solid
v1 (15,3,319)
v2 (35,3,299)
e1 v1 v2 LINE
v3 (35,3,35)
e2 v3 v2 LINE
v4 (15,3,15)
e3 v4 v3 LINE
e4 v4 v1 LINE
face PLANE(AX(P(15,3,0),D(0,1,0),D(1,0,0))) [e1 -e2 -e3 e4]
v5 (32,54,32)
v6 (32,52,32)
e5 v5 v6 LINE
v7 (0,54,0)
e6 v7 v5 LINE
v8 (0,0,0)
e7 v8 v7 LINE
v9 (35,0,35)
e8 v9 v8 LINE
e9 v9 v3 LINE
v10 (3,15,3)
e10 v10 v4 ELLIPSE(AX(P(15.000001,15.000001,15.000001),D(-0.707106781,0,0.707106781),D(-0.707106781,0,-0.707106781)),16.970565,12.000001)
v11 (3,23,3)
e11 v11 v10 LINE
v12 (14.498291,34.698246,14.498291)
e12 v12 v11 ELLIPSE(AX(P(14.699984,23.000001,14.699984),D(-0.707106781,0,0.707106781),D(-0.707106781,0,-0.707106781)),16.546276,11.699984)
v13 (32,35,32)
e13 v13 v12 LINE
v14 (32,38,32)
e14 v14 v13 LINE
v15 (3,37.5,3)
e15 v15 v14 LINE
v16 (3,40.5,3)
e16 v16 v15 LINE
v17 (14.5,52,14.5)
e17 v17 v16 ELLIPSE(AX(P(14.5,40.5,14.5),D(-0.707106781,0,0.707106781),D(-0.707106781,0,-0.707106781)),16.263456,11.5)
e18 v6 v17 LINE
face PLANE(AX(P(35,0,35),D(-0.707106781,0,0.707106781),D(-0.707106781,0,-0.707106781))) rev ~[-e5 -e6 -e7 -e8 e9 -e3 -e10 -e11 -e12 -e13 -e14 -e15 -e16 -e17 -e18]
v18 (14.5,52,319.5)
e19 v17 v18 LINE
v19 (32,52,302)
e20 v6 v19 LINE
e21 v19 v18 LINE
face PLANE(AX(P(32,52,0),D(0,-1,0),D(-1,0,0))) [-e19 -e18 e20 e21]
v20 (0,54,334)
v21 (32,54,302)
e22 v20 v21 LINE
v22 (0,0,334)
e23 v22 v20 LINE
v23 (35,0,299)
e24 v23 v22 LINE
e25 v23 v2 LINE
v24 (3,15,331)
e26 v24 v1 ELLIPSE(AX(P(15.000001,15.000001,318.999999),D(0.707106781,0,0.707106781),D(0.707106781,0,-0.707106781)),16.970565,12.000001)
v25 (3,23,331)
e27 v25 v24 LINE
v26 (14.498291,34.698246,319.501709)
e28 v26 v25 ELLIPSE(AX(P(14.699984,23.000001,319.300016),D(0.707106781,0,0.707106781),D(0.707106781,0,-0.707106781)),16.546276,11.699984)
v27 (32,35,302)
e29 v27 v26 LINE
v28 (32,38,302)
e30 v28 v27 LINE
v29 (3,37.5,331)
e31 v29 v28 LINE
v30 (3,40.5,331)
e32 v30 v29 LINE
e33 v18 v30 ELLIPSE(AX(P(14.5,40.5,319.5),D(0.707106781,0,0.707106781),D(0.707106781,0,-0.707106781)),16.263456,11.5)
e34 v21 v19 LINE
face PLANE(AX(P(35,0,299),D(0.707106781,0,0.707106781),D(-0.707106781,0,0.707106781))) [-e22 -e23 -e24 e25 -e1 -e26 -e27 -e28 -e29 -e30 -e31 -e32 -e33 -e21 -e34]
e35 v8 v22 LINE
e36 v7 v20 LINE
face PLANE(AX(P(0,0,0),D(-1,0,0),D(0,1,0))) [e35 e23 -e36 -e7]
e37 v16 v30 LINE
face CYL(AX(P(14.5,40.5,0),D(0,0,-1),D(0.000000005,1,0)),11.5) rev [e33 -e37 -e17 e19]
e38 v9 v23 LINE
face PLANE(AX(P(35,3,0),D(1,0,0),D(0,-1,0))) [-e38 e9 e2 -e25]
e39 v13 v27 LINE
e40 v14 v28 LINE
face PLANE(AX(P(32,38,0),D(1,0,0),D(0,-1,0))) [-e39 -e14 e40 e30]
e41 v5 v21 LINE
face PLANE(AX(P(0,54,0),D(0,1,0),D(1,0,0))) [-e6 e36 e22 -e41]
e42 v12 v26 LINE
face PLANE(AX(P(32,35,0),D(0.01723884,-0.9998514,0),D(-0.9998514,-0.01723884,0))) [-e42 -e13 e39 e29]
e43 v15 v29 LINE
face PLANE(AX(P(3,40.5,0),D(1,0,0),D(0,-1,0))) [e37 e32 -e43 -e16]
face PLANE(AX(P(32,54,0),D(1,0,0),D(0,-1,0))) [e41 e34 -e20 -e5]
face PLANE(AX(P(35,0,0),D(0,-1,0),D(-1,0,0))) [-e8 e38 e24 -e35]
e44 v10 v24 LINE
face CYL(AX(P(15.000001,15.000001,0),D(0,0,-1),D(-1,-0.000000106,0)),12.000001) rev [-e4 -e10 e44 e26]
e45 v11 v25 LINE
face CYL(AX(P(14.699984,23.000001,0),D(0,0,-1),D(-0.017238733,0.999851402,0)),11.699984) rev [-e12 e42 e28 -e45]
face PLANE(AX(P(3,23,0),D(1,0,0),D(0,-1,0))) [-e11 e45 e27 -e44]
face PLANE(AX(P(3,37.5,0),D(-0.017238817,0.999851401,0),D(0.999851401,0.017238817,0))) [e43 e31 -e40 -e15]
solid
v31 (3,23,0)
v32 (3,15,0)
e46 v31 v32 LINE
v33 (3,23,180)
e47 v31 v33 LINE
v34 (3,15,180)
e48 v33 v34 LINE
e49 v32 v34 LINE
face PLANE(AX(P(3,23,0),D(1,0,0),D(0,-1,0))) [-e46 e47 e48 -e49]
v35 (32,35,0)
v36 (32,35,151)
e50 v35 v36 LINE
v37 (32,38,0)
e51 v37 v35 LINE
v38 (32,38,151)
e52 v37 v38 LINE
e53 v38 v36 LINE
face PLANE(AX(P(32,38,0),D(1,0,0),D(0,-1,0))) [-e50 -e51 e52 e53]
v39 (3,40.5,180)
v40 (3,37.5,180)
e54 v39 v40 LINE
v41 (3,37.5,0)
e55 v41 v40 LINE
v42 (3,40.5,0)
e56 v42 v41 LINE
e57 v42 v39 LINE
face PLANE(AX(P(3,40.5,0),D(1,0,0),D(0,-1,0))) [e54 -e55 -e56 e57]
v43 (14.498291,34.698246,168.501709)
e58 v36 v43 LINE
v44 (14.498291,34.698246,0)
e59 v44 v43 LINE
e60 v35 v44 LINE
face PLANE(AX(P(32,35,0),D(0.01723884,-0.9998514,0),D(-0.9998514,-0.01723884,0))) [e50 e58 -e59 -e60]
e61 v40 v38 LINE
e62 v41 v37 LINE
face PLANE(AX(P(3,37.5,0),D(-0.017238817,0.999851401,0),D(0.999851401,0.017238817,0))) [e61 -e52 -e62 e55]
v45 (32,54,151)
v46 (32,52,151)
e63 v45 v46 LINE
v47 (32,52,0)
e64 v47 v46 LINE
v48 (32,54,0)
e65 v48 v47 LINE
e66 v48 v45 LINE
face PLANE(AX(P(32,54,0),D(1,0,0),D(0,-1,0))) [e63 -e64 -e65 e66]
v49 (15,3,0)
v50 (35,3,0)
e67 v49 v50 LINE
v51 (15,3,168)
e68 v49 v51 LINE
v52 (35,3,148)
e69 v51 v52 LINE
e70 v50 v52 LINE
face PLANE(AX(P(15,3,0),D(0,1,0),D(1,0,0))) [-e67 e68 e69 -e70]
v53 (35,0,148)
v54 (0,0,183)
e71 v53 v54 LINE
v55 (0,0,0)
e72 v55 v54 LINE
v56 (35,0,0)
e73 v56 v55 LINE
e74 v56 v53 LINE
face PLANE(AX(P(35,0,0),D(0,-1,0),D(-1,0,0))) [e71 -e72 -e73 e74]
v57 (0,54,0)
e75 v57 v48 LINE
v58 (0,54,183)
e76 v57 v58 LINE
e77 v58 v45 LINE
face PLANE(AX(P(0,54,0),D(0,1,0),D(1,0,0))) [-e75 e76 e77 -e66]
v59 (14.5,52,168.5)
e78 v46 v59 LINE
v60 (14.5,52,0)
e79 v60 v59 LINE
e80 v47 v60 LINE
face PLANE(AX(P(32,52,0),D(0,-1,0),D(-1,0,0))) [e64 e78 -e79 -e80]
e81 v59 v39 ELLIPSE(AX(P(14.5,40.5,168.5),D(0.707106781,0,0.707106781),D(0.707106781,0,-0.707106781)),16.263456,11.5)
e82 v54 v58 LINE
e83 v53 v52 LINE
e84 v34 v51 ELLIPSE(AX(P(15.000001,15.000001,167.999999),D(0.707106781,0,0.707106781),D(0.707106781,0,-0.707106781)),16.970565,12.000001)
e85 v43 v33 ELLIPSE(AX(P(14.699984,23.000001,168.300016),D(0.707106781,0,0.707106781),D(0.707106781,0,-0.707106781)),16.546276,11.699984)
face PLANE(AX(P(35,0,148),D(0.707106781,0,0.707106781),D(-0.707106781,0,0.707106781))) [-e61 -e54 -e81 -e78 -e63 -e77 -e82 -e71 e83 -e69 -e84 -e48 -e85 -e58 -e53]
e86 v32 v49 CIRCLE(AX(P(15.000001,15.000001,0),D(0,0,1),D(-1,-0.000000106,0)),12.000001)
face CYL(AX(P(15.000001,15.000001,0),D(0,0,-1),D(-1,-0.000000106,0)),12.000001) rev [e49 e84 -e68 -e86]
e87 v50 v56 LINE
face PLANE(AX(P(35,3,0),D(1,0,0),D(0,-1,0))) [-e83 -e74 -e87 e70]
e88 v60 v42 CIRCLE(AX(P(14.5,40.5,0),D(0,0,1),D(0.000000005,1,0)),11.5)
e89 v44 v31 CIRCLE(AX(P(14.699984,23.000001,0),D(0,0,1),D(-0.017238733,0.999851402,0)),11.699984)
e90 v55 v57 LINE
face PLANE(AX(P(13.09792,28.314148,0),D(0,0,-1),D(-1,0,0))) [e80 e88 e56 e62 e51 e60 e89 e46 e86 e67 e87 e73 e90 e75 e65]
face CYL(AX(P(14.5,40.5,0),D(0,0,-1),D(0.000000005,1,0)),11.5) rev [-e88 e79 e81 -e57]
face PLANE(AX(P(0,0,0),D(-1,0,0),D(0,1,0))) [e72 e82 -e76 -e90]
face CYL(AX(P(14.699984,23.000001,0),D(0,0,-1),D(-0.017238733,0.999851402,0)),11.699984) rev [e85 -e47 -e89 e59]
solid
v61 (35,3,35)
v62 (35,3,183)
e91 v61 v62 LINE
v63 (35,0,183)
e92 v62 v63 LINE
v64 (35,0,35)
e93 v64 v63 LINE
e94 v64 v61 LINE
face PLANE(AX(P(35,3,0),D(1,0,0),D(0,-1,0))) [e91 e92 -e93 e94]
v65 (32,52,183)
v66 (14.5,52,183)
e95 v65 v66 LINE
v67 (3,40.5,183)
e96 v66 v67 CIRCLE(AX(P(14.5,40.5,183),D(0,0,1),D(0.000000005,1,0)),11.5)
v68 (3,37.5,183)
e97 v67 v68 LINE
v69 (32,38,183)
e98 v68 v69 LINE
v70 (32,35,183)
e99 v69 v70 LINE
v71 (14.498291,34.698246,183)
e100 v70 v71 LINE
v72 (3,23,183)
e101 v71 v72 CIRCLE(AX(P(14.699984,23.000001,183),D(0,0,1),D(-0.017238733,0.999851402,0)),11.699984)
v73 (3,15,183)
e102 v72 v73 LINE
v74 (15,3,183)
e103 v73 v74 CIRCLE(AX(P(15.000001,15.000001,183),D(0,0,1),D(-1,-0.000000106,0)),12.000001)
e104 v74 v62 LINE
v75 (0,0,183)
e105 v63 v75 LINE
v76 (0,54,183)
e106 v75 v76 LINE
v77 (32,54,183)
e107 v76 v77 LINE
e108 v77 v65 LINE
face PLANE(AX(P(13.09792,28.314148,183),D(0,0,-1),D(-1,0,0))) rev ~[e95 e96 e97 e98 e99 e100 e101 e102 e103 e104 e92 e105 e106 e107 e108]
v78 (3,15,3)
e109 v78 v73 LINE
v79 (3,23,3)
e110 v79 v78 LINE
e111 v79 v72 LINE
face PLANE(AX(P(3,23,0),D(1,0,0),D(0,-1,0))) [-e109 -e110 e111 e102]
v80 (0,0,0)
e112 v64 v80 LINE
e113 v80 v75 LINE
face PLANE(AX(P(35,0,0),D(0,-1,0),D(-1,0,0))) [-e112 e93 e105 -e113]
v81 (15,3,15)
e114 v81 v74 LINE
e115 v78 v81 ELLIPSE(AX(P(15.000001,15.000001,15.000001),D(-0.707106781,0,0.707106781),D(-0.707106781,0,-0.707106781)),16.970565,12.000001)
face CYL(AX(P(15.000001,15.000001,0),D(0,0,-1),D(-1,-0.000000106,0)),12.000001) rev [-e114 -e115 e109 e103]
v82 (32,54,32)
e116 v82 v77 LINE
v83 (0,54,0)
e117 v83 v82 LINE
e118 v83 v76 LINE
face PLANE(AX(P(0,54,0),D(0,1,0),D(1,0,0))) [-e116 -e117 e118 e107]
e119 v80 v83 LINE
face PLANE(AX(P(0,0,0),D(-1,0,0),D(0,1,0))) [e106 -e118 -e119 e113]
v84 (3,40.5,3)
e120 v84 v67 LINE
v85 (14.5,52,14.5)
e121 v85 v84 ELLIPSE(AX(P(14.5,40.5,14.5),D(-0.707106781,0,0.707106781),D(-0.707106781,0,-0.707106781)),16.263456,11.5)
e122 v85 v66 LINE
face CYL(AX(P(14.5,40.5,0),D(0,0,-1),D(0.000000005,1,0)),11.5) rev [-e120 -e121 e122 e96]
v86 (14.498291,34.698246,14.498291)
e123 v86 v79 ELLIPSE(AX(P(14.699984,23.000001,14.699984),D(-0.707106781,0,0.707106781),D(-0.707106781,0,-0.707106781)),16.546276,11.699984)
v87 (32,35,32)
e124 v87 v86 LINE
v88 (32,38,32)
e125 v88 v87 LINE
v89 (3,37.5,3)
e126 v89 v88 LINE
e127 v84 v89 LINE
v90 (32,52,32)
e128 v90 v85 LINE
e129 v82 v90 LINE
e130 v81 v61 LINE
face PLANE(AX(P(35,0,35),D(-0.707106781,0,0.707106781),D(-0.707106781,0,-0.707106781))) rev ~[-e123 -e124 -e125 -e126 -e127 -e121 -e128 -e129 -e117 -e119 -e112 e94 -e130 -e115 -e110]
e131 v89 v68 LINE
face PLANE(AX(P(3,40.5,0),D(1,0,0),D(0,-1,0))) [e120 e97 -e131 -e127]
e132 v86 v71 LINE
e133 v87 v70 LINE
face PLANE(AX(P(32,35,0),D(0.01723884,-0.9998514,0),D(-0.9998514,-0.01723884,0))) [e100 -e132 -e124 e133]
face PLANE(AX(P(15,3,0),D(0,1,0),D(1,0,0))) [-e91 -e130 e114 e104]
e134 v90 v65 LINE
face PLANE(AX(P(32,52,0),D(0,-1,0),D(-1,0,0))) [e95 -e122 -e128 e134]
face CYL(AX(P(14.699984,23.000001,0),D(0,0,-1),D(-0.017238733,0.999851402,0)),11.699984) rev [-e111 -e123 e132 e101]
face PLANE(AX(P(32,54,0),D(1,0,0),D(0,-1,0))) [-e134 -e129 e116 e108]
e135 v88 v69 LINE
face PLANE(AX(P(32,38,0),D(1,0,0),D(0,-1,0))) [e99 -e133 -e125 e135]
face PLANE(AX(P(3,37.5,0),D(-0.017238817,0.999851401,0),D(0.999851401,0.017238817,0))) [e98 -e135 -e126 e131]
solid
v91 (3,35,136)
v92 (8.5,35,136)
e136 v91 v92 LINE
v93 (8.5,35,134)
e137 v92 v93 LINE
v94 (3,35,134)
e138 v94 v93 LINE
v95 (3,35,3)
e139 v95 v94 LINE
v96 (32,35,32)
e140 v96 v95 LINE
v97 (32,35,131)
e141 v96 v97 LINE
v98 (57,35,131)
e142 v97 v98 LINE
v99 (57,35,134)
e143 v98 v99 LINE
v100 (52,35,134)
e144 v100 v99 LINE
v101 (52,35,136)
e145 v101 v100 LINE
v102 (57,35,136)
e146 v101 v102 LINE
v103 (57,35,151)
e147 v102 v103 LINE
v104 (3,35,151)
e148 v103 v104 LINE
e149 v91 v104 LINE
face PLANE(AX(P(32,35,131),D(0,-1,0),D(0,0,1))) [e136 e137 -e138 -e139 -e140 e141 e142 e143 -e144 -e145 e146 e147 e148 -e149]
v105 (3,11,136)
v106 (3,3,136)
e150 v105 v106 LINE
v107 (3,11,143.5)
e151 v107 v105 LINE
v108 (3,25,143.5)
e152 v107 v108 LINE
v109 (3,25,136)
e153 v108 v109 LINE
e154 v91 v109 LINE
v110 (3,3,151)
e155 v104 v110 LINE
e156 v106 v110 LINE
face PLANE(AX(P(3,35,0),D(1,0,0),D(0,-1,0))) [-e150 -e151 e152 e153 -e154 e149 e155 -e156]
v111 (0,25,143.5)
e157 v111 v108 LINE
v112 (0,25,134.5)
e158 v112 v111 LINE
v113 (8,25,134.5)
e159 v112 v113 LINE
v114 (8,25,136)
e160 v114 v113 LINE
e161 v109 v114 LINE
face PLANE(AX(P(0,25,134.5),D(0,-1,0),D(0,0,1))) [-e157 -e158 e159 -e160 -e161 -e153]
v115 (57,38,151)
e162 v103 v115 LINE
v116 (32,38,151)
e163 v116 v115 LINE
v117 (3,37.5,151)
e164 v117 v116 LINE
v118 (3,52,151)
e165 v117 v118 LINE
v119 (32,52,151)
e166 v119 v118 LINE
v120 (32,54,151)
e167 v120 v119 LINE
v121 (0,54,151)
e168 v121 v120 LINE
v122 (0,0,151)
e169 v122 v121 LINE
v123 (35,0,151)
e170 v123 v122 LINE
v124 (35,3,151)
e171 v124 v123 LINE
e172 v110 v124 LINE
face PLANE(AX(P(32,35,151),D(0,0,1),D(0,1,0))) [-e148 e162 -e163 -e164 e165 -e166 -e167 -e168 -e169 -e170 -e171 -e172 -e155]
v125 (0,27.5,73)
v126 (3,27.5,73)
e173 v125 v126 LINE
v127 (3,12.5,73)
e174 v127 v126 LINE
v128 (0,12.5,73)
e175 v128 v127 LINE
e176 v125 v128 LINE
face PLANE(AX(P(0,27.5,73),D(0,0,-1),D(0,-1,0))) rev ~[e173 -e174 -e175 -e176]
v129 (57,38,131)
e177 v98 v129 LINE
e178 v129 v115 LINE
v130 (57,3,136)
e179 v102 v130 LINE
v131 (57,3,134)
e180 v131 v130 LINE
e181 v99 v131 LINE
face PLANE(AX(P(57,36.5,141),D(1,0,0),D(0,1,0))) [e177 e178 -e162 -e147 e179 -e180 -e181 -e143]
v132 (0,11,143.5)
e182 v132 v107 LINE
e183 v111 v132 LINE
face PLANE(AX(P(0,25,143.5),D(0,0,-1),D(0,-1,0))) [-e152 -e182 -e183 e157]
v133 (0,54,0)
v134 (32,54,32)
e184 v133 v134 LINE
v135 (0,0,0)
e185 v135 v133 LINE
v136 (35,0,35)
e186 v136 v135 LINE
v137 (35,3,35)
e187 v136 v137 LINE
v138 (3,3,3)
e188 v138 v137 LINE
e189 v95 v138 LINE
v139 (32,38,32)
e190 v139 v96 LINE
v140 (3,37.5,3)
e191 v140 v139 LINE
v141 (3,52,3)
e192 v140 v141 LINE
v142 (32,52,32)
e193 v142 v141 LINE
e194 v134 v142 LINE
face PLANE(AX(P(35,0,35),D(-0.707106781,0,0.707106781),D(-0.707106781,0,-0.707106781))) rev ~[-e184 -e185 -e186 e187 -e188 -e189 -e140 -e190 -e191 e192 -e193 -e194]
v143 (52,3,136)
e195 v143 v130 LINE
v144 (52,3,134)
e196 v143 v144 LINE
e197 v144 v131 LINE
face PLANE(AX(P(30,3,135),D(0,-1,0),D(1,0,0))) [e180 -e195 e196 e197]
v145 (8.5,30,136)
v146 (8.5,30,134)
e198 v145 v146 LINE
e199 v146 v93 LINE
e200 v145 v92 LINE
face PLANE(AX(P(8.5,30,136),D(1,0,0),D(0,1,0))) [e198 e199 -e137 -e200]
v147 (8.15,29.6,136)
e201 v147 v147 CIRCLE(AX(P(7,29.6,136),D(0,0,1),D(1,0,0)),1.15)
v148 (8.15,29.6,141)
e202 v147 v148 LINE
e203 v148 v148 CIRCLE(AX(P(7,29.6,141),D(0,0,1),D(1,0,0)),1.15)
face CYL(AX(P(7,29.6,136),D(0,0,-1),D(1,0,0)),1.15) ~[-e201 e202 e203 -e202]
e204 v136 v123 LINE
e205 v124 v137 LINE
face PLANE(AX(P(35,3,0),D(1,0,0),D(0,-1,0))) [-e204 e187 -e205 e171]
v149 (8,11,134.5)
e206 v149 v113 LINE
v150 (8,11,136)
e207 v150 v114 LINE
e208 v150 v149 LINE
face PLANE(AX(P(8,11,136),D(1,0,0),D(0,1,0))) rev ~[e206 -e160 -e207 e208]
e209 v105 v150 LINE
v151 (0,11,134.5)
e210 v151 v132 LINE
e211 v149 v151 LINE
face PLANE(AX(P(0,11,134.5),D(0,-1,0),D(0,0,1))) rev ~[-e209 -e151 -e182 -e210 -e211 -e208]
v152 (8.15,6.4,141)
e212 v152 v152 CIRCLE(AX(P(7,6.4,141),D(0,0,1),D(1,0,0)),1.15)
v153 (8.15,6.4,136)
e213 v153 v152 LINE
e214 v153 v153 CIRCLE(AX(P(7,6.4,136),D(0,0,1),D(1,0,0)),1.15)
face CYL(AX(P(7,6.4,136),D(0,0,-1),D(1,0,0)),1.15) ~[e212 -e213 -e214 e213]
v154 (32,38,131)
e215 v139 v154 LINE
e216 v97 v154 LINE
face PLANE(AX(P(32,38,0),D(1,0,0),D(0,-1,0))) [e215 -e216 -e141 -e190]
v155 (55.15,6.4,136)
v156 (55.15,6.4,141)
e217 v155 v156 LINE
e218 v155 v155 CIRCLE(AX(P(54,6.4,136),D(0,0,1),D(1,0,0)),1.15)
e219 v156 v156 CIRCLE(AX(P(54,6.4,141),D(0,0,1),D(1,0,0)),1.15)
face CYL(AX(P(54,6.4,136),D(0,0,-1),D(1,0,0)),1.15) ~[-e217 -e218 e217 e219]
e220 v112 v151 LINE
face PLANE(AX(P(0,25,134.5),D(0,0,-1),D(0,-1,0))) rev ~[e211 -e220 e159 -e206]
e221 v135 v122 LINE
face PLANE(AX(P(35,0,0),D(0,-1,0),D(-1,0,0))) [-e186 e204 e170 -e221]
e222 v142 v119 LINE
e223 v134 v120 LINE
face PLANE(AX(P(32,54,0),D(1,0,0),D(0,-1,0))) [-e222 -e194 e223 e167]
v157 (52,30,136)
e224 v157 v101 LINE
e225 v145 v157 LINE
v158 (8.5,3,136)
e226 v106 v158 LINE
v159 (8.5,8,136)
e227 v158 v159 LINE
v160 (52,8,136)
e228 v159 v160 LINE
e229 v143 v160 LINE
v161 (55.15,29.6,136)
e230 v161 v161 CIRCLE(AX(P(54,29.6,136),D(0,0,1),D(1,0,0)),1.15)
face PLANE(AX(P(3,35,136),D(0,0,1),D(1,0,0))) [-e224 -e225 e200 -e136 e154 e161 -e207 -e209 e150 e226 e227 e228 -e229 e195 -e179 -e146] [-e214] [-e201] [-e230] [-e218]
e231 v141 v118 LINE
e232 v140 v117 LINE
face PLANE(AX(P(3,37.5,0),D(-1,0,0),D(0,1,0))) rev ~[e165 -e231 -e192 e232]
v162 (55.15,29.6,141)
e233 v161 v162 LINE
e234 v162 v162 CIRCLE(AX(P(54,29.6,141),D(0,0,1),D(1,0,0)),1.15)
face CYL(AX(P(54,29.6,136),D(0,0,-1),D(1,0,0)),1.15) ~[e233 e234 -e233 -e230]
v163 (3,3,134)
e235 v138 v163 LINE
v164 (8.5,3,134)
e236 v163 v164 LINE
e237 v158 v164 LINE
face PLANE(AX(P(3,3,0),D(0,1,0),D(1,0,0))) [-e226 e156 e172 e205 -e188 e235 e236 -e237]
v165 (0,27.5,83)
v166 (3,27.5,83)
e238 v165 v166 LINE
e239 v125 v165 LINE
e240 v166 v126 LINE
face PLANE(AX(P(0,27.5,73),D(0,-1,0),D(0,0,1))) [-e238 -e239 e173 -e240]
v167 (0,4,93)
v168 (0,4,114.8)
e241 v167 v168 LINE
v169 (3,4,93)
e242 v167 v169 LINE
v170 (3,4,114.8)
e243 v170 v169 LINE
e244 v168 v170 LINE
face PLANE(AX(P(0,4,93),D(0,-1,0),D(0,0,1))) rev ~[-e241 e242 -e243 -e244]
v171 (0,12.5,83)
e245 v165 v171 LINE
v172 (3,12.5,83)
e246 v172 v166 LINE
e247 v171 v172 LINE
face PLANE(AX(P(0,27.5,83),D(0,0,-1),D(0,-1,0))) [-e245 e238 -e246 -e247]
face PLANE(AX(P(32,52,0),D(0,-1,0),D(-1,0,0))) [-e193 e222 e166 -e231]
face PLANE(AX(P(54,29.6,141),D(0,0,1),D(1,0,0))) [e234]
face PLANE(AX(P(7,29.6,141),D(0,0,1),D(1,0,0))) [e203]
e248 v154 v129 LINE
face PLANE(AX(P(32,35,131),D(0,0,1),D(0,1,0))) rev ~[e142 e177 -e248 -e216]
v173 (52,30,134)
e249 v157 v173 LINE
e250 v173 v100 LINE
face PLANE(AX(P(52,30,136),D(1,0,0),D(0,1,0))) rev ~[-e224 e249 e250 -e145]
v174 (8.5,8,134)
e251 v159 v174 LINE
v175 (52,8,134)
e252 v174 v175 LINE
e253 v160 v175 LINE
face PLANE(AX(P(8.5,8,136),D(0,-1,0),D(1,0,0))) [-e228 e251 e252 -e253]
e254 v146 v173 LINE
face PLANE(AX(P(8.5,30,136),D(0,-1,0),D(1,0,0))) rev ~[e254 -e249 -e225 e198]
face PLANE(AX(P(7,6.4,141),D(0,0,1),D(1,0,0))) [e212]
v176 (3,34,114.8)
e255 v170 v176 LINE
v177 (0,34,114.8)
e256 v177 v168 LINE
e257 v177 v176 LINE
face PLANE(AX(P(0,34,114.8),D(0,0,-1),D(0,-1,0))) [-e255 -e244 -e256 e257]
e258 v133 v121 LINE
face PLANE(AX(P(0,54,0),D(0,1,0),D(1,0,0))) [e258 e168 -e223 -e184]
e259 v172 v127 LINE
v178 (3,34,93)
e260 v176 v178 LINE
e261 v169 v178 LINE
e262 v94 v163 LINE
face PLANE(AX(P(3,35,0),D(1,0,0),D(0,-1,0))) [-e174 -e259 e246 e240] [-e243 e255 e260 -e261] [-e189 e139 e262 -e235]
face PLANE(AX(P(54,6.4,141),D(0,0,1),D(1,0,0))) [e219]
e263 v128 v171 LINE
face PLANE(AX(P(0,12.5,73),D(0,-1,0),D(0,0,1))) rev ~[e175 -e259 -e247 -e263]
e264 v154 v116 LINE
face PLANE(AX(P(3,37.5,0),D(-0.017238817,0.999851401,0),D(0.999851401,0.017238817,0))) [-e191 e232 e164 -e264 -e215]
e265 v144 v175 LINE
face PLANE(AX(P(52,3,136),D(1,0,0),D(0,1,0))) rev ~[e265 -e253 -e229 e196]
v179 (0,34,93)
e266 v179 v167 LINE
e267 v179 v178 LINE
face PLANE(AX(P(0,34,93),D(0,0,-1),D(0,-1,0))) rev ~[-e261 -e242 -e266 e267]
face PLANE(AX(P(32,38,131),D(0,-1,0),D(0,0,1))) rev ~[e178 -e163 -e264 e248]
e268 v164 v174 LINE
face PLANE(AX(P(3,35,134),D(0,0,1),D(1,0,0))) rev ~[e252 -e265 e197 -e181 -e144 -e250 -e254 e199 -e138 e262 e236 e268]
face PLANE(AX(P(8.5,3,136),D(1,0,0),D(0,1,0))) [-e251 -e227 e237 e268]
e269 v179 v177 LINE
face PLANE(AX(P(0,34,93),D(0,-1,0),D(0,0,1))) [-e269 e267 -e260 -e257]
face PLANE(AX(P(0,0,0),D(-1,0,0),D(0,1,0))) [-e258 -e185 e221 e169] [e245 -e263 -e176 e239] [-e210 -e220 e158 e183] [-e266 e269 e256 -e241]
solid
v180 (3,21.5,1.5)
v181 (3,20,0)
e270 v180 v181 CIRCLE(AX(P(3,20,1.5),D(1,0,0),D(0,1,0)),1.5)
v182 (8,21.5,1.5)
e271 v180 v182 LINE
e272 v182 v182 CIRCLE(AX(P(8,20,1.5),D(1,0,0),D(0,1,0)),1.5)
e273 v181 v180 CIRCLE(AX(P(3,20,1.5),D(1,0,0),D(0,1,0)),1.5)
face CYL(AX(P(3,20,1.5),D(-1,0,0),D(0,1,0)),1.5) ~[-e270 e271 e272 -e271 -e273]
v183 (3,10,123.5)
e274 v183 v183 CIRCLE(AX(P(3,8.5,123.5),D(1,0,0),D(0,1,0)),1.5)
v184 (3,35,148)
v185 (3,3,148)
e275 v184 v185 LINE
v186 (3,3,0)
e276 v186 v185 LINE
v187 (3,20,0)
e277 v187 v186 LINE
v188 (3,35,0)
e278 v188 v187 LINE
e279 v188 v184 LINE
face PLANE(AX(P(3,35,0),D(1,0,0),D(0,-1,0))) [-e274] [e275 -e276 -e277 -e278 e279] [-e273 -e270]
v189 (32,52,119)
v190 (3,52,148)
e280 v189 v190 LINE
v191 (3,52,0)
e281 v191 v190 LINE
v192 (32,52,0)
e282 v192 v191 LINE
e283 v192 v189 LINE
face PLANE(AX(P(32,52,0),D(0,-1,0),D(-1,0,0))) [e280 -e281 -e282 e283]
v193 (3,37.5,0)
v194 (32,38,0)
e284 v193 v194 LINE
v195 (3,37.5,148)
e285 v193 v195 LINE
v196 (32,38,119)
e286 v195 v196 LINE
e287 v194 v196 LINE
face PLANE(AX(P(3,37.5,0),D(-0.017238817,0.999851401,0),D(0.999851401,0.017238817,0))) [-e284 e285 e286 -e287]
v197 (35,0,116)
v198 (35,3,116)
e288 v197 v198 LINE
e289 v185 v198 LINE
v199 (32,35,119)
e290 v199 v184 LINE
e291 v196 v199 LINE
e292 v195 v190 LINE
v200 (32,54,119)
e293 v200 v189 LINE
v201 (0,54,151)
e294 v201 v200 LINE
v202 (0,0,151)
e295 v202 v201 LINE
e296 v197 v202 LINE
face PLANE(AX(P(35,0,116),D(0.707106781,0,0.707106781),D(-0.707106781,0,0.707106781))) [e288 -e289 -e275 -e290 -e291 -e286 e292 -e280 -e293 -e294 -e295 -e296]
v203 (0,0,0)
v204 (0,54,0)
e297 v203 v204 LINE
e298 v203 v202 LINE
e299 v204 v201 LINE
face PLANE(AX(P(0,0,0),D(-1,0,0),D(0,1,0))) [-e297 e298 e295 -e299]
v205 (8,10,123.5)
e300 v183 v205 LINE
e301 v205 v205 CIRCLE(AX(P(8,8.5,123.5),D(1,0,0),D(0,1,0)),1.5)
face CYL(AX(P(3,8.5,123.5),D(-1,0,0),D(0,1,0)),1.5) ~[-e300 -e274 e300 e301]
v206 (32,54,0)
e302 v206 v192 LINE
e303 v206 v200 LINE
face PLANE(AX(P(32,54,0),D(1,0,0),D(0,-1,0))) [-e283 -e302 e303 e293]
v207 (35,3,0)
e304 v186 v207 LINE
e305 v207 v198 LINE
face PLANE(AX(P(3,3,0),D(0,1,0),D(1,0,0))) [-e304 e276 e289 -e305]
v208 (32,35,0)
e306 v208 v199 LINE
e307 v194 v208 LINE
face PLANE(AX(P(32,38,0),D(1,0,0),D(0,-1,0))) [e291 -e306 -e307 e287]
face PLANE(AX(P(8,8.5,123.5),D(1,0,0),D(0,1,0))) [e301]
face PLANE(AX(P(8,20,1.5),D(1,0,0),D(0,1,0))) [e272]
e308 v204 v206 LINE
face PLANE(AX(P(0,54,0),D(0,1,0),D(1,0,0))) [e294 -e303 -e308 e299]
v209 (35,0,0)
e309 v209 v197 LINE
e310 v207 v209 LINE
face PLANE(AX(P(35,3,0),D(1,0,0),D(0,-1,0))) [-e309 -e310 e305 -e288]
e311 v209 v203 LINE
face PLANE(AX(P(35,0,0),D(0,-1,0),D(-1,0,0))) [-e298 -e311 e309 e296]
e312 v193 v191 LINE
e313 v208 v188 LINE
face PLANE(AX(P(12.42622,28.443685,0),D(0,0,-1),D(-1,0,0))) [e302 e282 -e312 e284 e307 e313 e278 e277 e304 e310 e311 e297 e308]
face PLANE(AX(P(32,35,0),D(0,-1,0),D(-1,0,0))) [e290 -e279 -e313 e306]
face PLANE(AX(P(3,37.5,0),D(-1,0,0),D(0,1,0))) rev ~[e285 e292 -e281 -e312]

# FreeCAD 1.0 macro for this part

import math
import FreeCAD as App
import Part
import Sketcher

V = App.Vector


def add_polygon(sketch, points):
    """Adds a closed chain of lines whose ends are joined by coincident constraints."""
    first, n = sketch.GeometryCount, len(points)
    for a, b in zip(points, points[1:] + points[:1]):
        sketch.addGeometry(Part.LineSegment(App.Vector(*a, 0), App.Vector(*b, 0)), False)
    for i in range(n):
        sketch.addConstraint(Sketcher.Constraint("Coincident", first + i, 2, first + (i + 1) % n, 1))

doc = App.newDocument("Part")
body = doc.addObject("PartDesign::Body", "Body")

# Sketch on XY plane
sketch1 = body.newObject("Sketcher::SketchObject", "Sketch")
sketch1.AttachmentSupport = (doc.getObject("XY_Plane"), [""])
sketch1.MapMode = "FlatFace"
sketch1.addGeometry([
    Part.LineSegment(V(14.5, 52, 0), V(32, 52, 0)),  # 0
    Part.LineSegment(V(32, 52, 0), V(32, 54, 0)),  # 1
    Part.LineSegment(V(32, 54, 0), V(0, 54, 0)),  # 2
    Part.LineSegment(V(0, 54, 0), V(0, 0, 0)),  # 3
    Part.LineSegment(V(0, 0, 0), V(35, 0, 0)),  # 4
    Part.LineSegment(V(35, 0, 0), V(35, 3, 0)),  # 5
    Part.LineSegment(V(35, 3, 0), V(15, 3, 0)),  # 6
    Part.ArcOfCircle(Part.Circle(V(15, 15, 0), V(0, 0, 1), 12), math.radians(-180), math.radians(-90)),  # 7
    Part.LineSegment(V(3, 15, 0), V(3, 23, 0)),  # 8
    Part.ArcOfCircle(Part.Circle(V(14.7, 23, 0), V(0, 0, 1), 11.7), math.radians(91), math.radians(180)),  # 9
    Part.LineSegment(V(14.5, 34.7, 0), V(32, 35, 0)),  # 10
    Part.LineSegment(V(32, 35, 0), V(32, 38, 0)),  # 11
    Part.LineSegment(V(32, 38, 0), V(3, 37.5, 0)),  # 12
    Part.LineSegment(V(3, 37.5, 0), V(3, 40.5, 0)),  # 13
    Part.ArcOfCircle(Part.Circle(V(14.5, 40.5, 0), V(0, 0, 1), 11.5), math.radians(90), math.radians(180)),  # 14
], False)
sketch1.addConstraint([
    Sketcher.Constraint("Coincident", 0, 2, 1, 1),
    Sketcher.Constraint("Coincident", 1, 2, 2, 1),
    Sketcher.Constraint("Coincident", 2, 2, 3, 1),
    Sketcher.Constraint("Coincident", 3, 2, 4, 1),
    Sketcher.Constraint("Coincident", 4, 2, 5, 1),
    Sketcher.Constraint("Coincident", 5, 2, 6, 1),
    Sketcher.Constraint("Tangent", 6, 2, 7, 2),
    Sketcher.Constraint("Tangent", 7, 1, 8, 1),
    Sketcher.Constraint("Tangent", 8, 2, 9, 2),
    Sketcher.Constraint("Tangent", 9, 1, 10, 1),
    Sketcher.Constraint("Coincident", 10, 2, 11, 1),
    Sketcher.Constraint("Coincident", 11, 2, 12, 1),
    Sketcher.Constraint("Coincident", 12, 2, 13, 1),
    Sketcher.Constraint("Tangent", 13, 2, 14, 2),
    Sketcher.Constraint("Tangent", 14, 1, 0, 1),
    Sketcher.Constraint("Horizontal", 0),
    Sketcher.Constraint("Vertical", 1),
    Sketcher.Constraint("Horizontal", 2),
    Sketcher.Constraint("Vertical", 3),
    Sketcher.Constraint("Horizontal", 4),
    Sketcher.Constraint("Vertical", 5),
    Sketcher.Constraint("Horizontal", 6),
    Sketcher.Constraint("Vertical", 8),
    Sketcher.Constraint("Vertical", 11),
    Sketcher.Constraint("Vertical", 13),
    Sketcher.Constraint("Coincident", 3, 2, -1, 1),
    Sketcher.Constraint("Parallel", 10, 12),
    Sketcher.Constraint("Vertical", 1, 2, 10, 2),
    Sketcher.Constraint("Vertical", 8, 2, 12, 2),
    Sketcher.Constraint("Equal", 5, 11),
    Sketcher.Constraint("Equal", 11, 13),
    Sketcher.Constraint("Radius", 7, 12.000001),
    Sketcher.Constraint("Radius", 14, 11.5),
    Sketcher.Constraint("DistanceX", 2, 2, 2, 1, 32.0),
    Sketcher.Constraint("DistanceX", 4, 1, 4, 2, 35.0),
    Sketcher.Constraint("DistanceX", 6, 2, 6, 1, 20.0),
    Sketcher.Constraint("DistanceY", 1, 1, 1, 2, 2.0),
    Sketcher.Constraint("DistanceY", 3, 2, 3, 1, 54.0),
    Sketcher.Constraint("DistanceY", 5, 1, 5, 2, 3.0),
    Sketcher.Constraint("DistanceY", 8, 1, 8, 2, 8.0),
    Sketcher.Constraint("DistanceY", -1, 1, 10, 2, 35.0),
])
pad1 = body.newObject("PartDesign::Pad", "Pad")
pad1.Profile = sketch1
pad1.Length = 334

# Sketch on XZ plane
sketch2 = body.newObject("Sketcher::SketchObject", "Sketch001")
sketch2.AttachmentSupport = (doc.getObject("XZ_Plane"), [""])
sketch2.MapMode = "FlatFace"
add_polygon(sketch2, [(35, 334), (0, 334), (35, 299)])  # lines 0-2
sketch2.addConstraint([
    Sketcher.Constraint("Horizontal", 0),
    Sketcher.Constraint("Vertical", 2),
    Sketcher.Constraint("PointOnObject", 0, 2, -2),
    Sketcher.Constraint("Equal", 0, 2),
    Sketcher.Constraint("DistanceX", 0, 2, 0, 1, 35.0),
    Sketcher.Constraint("DistanceY", -1, 1, 0, 2, 334.0),
])
pocket1 = body.newObject("PartDesign::Pocket", "Pocket")
pocket1.Profile = sketch2
pocket1.Type = "ThroughAll"

# Sketch on XZ plane
sketch3 = body.newObject("Sketcher::SketchObject", "Sketch002")
sketch3.AttachmentSupport = (doc.getObject("XZ_Plane"), [""])
sketch3.MapMode = "FlatFace"
add_polygon(sketch3, [(0, 0), (35, 0), (35, 35)])  # lines 0-2
sketch3.addConstraint([
    Sketcher.Constraint("Horizontal", 0),
    Sketcher.Constraint("Vertical", 1),
    Sketcher.Constraint("Coincident", 2, 2, -1, 1),
    Sketcher.Constraint("Equal", 0, 1),
    Sketcher.Constraint("DistanceX", 0, 1, 0, 2, 35.0),
])
pocket2 = body.newObject("PartDesign::Pocket", "Pocket001")
pocket2.Profile = sketch3
pocket2.Type = "ThroughAll"
body2 = doc.addObject("PartDesign::Body", "Body001")

# Sketch on XY plane
sketch4 = body2.newObject("Sketcher::SketchObject", "Sketch003")
sketch4.AttachmentSupport = (doc.getObject("XY_Plane001"), [""])
sketch4.MapMode = "FlatFace"
sketch4.addGeometry([
    Part.LineSegment(V(14.5, 52, 0), V(32, 52, 0)),  # 0
    Part.LineSegment(V(32, 52, 0), V(32, 54, 0)),  # 1
    Part.LineSegment(V(32, 54, 0), V(0, 54, 0)),  # 2
    Part.LineSegment(V(0, 54, 0), V(0, 0, 0)),  # 3
    Part.LineSegment(V(0, 0, 0), V(35, 0, 0)),  # 4
    Part.LineSegment(V(35, 0, 0), V(35, 3, 0)),  # 5
    Part.LineSegment(V(35, 3, 0), V(15, 3, 0)),  # 6
    Part.ArcOfCircle(Part.Circle(V(15, 15, 0), V(0, 0, 1), 12), math.radians(-180), math.radians(-90)),  # 7
    Part.LineSegment(V(3, 15, 0), V(3, 23, 0)),  # 8
    Part.ArcOfCircle(Part.Circle(V(14.7, 23, 0), V(0, 0, 1), 11.7), math.radians(91), math.radians(180)),  # 9
    Part.LineSegment(V(14.5, 34.7, 0), V(32, 35, 0)),  # 10
    Part.LineSegment(V(32, 35, 0), V(32, 38, 0)),  # 11
    Part.LineSegment(V(32, 38, 0), V(3, 37.5, 0)),  # 12
    Part.LineSegment(V(3, 37.5, 0), V(3, 40.5, 0)),  # 13
    Part.ArcOfCircle(Part.Circle(V(14.5, 40.5, 0), V(0, 0, 1), 11.5), math.radians(90), math.radians(180)),  # 14
], False)
sketch4.addConstraint([
    Sketcher.Constraint("Coincident", 0, 2, 1, 1),
    Sketcher.Constraint("Coincident", 1, 2, 2, 1),
    Sketcher.Constraint("Coincident", 2, 2, 3, 1),
    Sketcher.Constraint("Coincident", 3, 2, 4, 1),
    Sketcher.Constraint("Coincident", 4, 2, 5, 1),
    Sketcher.Constraint("Coincident", 5, 2, 6, 1),
    Sketcher.Constraint("Tangent", 6, 2, 7, 2),
    Sketcher.Constraint("Tangent", 7, 1, 8, 1),
    Sketcher.Constraint("Tangent", 8, 2, 9, 2),
    Sketcher.Constraint("Tangent", 9, 1, 10, 1),
    Sketcher.Constraint("Coincident", 10, 2, 11, 1),
    Sketcher.Constraint("Coincident", 11, 2, 12, 1),
    Sketcher.Constraint("Coincident", 12, 2, 13, 1),
    Sketcher.Constraint("Tangent", 13, 2, 14, 2),
    Sketcher.Constraint("Tangent", 14, 1, 0, 1),
    Sketcher.Constraint("Horizontal", 0),
    Sketcher.Constraint("Vertical", 1),
    Sketcher.Constraint("Horizontal", 2),
    Sketcher.Constraint("Vertical", 3),
    Sketcher.Constraint("Horizontal", 4),
    Sketcher.Constraint("Vertical", 5),
    Sketcher.Constraint("Horizontal", 6),
    Sketcher.Constraint("Vertical", 8),
    Sketcher.Constraint("Vertical", 11),
    Sketcher.Constraint("Vertical", 13),
    Sketcher.Constraint("Coincident", 3, 2, -1, 1),
    Sketcher.Constraint("Parallel", 10, 12),
    Sketcher.Constraint("Vertical", 1, 2, 10, 2),
    Sketcher.Constraint("Vertical", 8, 2, 12, 2),
    Sketcher.Constraint("Equal", 5, 11),
    Sketcher.Constraint("Equal", 11, 13),
    Sketcher.Constraint("Radius", 7, 12.000001),
    Sketcher.Constraint("Radius", 14, 11.5),
    Sketcher.Constraint("DistanceX", 2, 2, 2, 1, 32.0),
    Sketcher.Constraint("DistanceX", 4, 1, 4, 2, 35.0),
    Sketcher.Constraint("DistanceX", 6, 2, 6, 1, 20.0),
    Sketcher.Constraint("DistanceY", 1, 1, 1, 2, 2.0),
    Sketcher.Constraint("DistanceY", 3, 2, 3, 1, 54.0),
    Sketcher.Constraint("DistanceY", 5, 1, 5, 2, 3.0),
    Sketcher.Constraint("DistanceY", 8, 1, 8, 2, 8.0),
    Sketcher.Constraint("DistanceY", -1, 1, 10, 2, 35.0),
])
pad2 = body2.newObject("PartDesign::Pad", "Pad001")
pad2.Profile = sketch4
pad2.Length = 183

# Sketch on XZ plane
sketch5 = body2.newObject("Sketcher::SketchObject", "Sketch004")
sketch5.AttachmentSupport = (doc.getObject("XZ_Plane001"), [""])
sketch5.MapMode = "FlatFace"
add_polygon(sketch5, [(0, 0), (35, 0), (35, 35)])  # lines 0-2
sketch5.addConstraint([
    Sketcher.Constraint("Horizontal", 0),
    Sketcher.Constraint("Vertical", 1),
    Sketcher.Constraint("Coincident", 2, 2, -1, 1),
    Sketcher.Constraint("Equal", 0, 1),
    Sketcher.Constraint("DistanceX", 0, 1, 0, 2, 35.0),
])
pocket3 = body2.newObject("PartDesign::Pocket", "Pocket002")
pocket3.Profile = sketch5
pocket3.Type = "ThroughAll"
body3 = doc.addObject("PartDesign::Body", "Body002")

# Sketch on XY plane
sketch6 = body3.newObject("Sketcher::SketchObject", "Sketch005")
sketch6.AttachmentSupport = (doc.getObject("XY_Plane002"), [""])
sketch6.MapMode = "FlatFace"
sketch6.addGeometry([
    Part.LineSegment(V(14.5, 52, 0), V(32, 52, 0)),  # 0
    Part.LineSegment(V(32, 52, 0), V(32, 54, 0)),  # 1
    Part.LineSegment(V(32, 54, 0), V(0, 54, 0)),  # 2
    Part.LineSegment(V(0, 54, 0), V(0, 0, 0)),  # 3
    Part.LineSegment(V(0, 0, 0), V(35, 0, 0)),  # 4
    Part.LineSegment(V(35, 0, 0), V(35, 3, 0)),  # 5
    Part.LineSegment(V(35, 3, 0), V(15, 3, 0)),  # 6
    Part.ArcOfCircle(Part.Circle(V(15, 15, 0), V(0, 0, 1), 12), math.radians(-180), math.radians(-90)),  # 7
    Part.LineSegment(V(3, 15, 0), V(3, 23, 0)),  # 8
    Part.ArcOfCircle(Part.Circle(V(14.7, 23, 0), V(0, 0, 1), 11.7), math.radians(91), math.radians(180)),  # 9
    Part.LineSegment(V(14.5, 34.7, 0), V(32, 35, 0)),  # 10
    Part.LineSegment(V(32, 35, 0), V(32, 38, 0)),  # 11
    Part.LineSegment(V(32, 38, 0), V(3, 37.5, 0)),  # 12
    Part.LineSegment(V(3, 37.5, 0), V(3, 40.5, 0)),  # 13
    Part.ArcOfCircle(Part.Circle(V(14.5, 40.5, 0), V(0, 0, 1), 11.5), math.radians(90), math.radians(180)),  # 14
], False)
sketch6.addConstraint([
    Sketcher.Constraint("Coincident", 0, 2, 1, 1),
    Sketcher.Constraint("Coincident", 1, 2, 2, 1),
    Sketcher.Constraint("Coincident", 2, 2, 3, 1),
    Sketcher.Constraint("Coincident", 3, 2, 4, 1),
    Sketcher.Constraint("Coincident", 4, 2, 5, 1),
    Sketcher.Constraint("Coincident", 5, 2, 6, 1),
    Sketcher.Constraint("Tangent", 6, 2, 7, 2),
    Sketcher.Constraint("Tangent", 7, 1, 8, 1),
    Sketcher.Constraint("Tangent", 8, 2, 9, 2),
    Sketcher.Constraint("Tangent", 9, 1, 10, 1),
    Sketcher.Constraint("Coincident", 10, 2, 11, 1),
    Sketcher.Constraint("Coincident", 11, 2, 12, 1),
    Sketcher.Constraint("Coincident", 12, 2, 13, 1),
    Sketcher.Constraint("Tangent", 13, 2, 14, 2),
    Sketcher.Constraint("Tangent", 14, 1, 0, 1),
    Sketcher.Constraint("Horizontal", 0),
    Sketcher.Constraint("Vertical", 1),
    Sketcher.Constraint("Horizontal", 2),
    Sketcher.Constraint("Vertical", 3),
    Sketcher.Constraint("Horizontal", 4),
    Sketcher.Constraint("Vertical", 5),
    Sketcher.Constraint("Horizontal", 6),
    Sketcher.Constraint("Vertical", 8),
    Sketcher.Constraint("Vertical", 11),
    Sketcher.Constraint("Vertical", 13),
    Sketcher.Constraint("Coincident", 3, 2, -1, 1),
    Sketcher.Constraint("Parallel", 10, 12),
    Sketcher.Constraint("Vertical", 1, 2, 10, 2),
    Sketcher.Constraint("Vertical", 8, 2, 12, 2),
    Sketcher.Constraint("Equal", 5, 11),
    Sketcher.Constraint("Equal", 11, 13),
    Sketcher.Constraint("Radius", 7, 12.000001),
    Sketcher.Constraint("Radius", 14, 11.5),
    Sketcher.Constraint("DistanceX", 2, 2, 2, 1, 32.0),
    Sketcher.Constraint("DistanceX", 4, 1, 4, 2, 35.0),
    Sketcher.Constraint("DistanceX", 6, 2, 6, 1, 20.0),
    Sketcher.Constraint("DistanceY", 1, 1, 1, 2, 2.0),
    Sketcher.Constraint("DistanceY", 3, 2, 3, 1, 54.0),
    Sketcher.Constraint("DistanceY", 5, 1, 5, 2, 3.0),
    Sketcher.Constraint("DistanceY", 8, 1, 8, 2, 8.0),
    Sketcher.Constraint("DistanceY", -1, 1, 10, 2, 35.0),
])
pad3 = body3.newObject("PartDesign::Pad", "Pad002")
pad3.Profile = sketch6
pad3.Length = 183

# Sketch on XZ plane
sketch7 = body3.newObject("Sketcher::SketchObject", "Sketch006")
sketch7.AttachmentSupport = (doc.getObject("XZ_Plane002"), [""])
sketch7.MapMode = "FlatFace"
add_polygon(sketch7, [(35, 183), (0, 183), (35, 148)])  # lines 0-2
sketch7.addConstraint([
    Sketcher.Constraint("Horizontal", 0),
    Sketcher.Constraint("Vertical", 2),
    Sketcher.Constraint("PointOnObject", 0, 2, -2),
    Sketcher.Constraint("Equal", 0, 2),
    Sketcher.Constraint("DistanceX", 0, 2, 0, 1, 35.0),
    Sketcher.Constraint("DistanceY", -1, 1, 0, 2, 183.0),
])
pocket4 = body3.newObject("PartDesign::Pocket", "Pocket003")
pocket4.Profile = sketch7
pocket4.Type = "ThroughAll"
body4 = doc.addObject("PartDesign::Body", "Body003")

# Sketch on XY plane
sketch8 = body4.newObject("Sketcher::SketchObject", "Sketch007")
sketch8.AttachmentSupport = (doc.getObject("XY_Plane003"), [""])
sketch8.MapMode = "FlatFace"
add_polygon(sketch8, [(3, 37.5), (3, 52), (32, 52), (32, 54), (0, 54), (0, 0), (35, 0), (35, 3), (3, 3), (3, 35), (32, 35), (32, 38)])  # lines 0-11
sketch8.addConstraint([
    Sketcher.Constraint("Vertical", 0),
    Sketcher.Constraint("Horizontal", 1),
    Sketcher.Constraint("Vertical", 2),
    Sketcher.Constraint("Horizontal", 3),
    Sketcher.Constraint("Vertical", 4),
    Sketcher.Constraint("Horizontal", 5),
    Sketcher.Constraint("Vertical", 6),
    Sketcher.Constraint("Horizontal", 7),
    Sketcher.Constraint("Vertical", 8),
    Sketcher.Constraint("Horizontal", 9),
    Sketcher.Constraint("Vertical", 10),
    Sketcher.Constraint("Coincident", 4, 2, -1, 1),
    Sketcher.Constraint("Vertical", 0, 2, 7, 2),
    Sketcher.Constraint("Vertical", 2, 2, 9, 2),
    Sketcher.Constraint("Equal", 3, 7),
    Sketcher.Constraint("Equal", 7, 8),
    Sketcher.Constraint("Equal", 6, 10),
    Sketcher.Constraint("DistanceX", 1, 1, 1, 2, 29.0),
    Sketcher.Constraint("DistanceX", 3, 2, 3, 1, 32.0),
    Sketcher.Constraint("DistanceY", 2, 1, 2, 2, 2.0),
    Sketcher.Constraint("DistanceY", 4, 2, 4, 1, 54.0),
    Sketcher.Constraint("DistanceY", 6, 1, 6, 2, 3.0),
    Sketcher.Constraint("DistanceY", 0, 1, 0, 2, 14.5),
])
pad4 = body4.newObject("PartDesign::Pad", "Pad003")
pad4.Profile = sketch8
pad4.Length = 151

# Sketch on XZ plane
sketch9 = body4.newObject("Sketcher::SketchObject", "Sketch008")
sketch9.AttachmentSupport = (doc.getObject("XZ_Plane003"), [""])
sketch9.MapMode = "FlatFace"
add_polygon(sketch9, [(35, 151), (0, 151), (35, 116)])  # lines 0-2
sketch9.addConstraint([
    Sketcher.Constraint("Horizontal", 0),
    Sketcher.Constraint("Vertical", 2),
    Sketcher.Constraint("PointOnObject", 0, 2, -2),
    Sketcher.Constraint("Equal", 0, 2),
    Sketcher.Constraint("DistanceX", 0, 2, 0, 1, 35.0),
    Sketcher.Constraint("DistanceY", -1, 1, 0, 2, 151.0),
])
pocket5 = body4.newObject("PartDesign::Pocket", "Pocket004")
pocket5.Profile = sketch9
pocket5.Type = "ThroughAll"

# Sketch on YZ plane
sketch10 = body4.newObject("Sketcher::SketchObject", "Sketch009")
sketch10.AttachmentSupport = (doc.getObject("YZ_Plane003"), [""])
sketch10.MapMode = "FlatFace"
sketch10.AttachmentOffset = App.Placement(V(0, 0, 3), App.Rotation())
sketch10.addGeometry([
    Part.Circle(V(8.5, 123.5, 0), V(0, 0, 1), 1.5),
    Part.Circle(V(20, 1.5, 0), V(0, 0, 1), 1.5),
], False)
sketch10.addConstraint([
    Sketcher.Constraint("Equal", 0, 1),
    Sketcher.Constraint("Diameter", 0, 3.0),
    Sketcher.Constraint("DistanceX", -1, 1, 1, 3, 20.0),
    Sketcher.Constraint("DistanceY", 1, 3, 0, 3, 122.0),
    Sketcher.Constraint("DistanceX", -1, 1, 0, 3, 8.5),
    Sketcher.Constraint("DistanceY", -1, 1, 0, 3, 123.5),
])
pad5 = body4.newObject("PartDesign::Pad", "Pad004")
pad5.Profile = sketch10
pad5.Length = 5
body5 = doc.addObject("PartDesign::Body", "Body004")

# Sketch on XY plane
sketch11 = body5.newObject("Sketcher::SketchObject", "Sketch010")
sketch11.AttachmentSupport = (doc.getObject("XY_Plane004"), [""])
sketch11.MapMode = "FlatFace"
add_polygon(sketch11, [(3, 37.5), (3, 52), (32, 52), (32, 54), (0, 54), (0, 0), (35, 0), (35, 3), (3, 3), (3, 35), (32, 35), (32, 38)])  # lines 0-11
sketch11.addConstraint([
    Sketcher.Constraint("Vertical", 0),
    Sketcher.Constraint("Horizontal", 1),
    Sketcher.Constraint("Vertical", 2),
    Sketcher.Constraint("Horizontal", 3),
    Sketcher.Constraint("Vertical", 4),
    Sketcher.Constraint("Horizontal", 5),
    Sketcher.Constraint("Vertical", 6),
    Sketcher.Constraint("Horizontal", 7),
    Sketcher.Constraint("Vertical", 8),
    Sketcher.Constraint("Horizontal", 9),
    Sketcher.Constraint("Vertical", 10),
    Sketcher.Constraint("Coincident", 4, 2, -1, 1),
    Sketcher.Constraint("Vertical", 0, 2, 7, 2),
    Sketcher.Constraint("Vertical", 2, 2, 9, 2),
    Sketcher.Constraint("Equal", 3, 7),
    Sketcher.Constraint("Equal", 7, 8),
    Sketcher.Constraint("Equal", 6, 10),
    Sketcher.Constraint("DistanceX", 1, 1, 1, 2, 29.0),
    Sketcher.Constraint("DistanceX", 3, 2, 3, 1, 32.0),
    Sketcher.Constraint("DistanceY", 2, 1, 2, 2, 2.0),
    Sketcher.Constraint("DistanceY", 4, 2, 4, 1, 54.0),
    Sketcher.Constraint("DistanceY", 6, 1, 6, 2, 3.0),
    Sketcher.Constraint("DistanceY", 0, 1, 0, 2, 14.5),
])
pad6 = body5.newObject("PartDesign::Pad", "Pad005")
pad6.Profile = sketch11
pad6.Length = 151

# Sketch on XZ plane
sketch12 = body5.newObject("Sketcher::SketchObject", "Sketch011")
sketch12.AttachmentSupport = (doc.getObject("XZ_Plane004"), [""])
sketch12.MapMode = "FlatFace"
add_polygon(sketch12, [(0, 0), (35, 0), (35, 35)])  # lines 0-2
sketch12.addConstraint([
    Sketcher.Constraint("Horizontal", 0),
    Sketcher.Constraint("Vertical", 1),
    Sketcher.Constraint("Coincident", 2, 2, -1, 1),
    Sketcher.Constraint("Equal", 0, 1),
    Sketcher.Constraint("DistanceX", 0, 1, 0, 2, 35.0),
])
pocket6 = body5.newObject("PartDesign::Pocket", "Pocket005")
pocket6.Profile = sketch12
pocket6.Type = "ThroughAll"

# Sketch on YZ plane
sketch13 = body5.newObject("Sketcher::SketchObject", "Sketch012")
sketch13.AttachmentSupport = (doc.getObject("YZ_Plane004"), [""])
sketch13.MapMode = "FlatFace"
add_polygon(sketch13, [(28, 83), (28, 73), (12, 73), (12, 83)])  # lines 0-3
add_polygon(sketch13, [(34, 115), (34, 93), (4, 93), (4, 115)])  # lines 4-7
add_polygon(sketch13, [(25, 144), (25, 134), (11, 134), (11, 144)])  # lines 8-11
sketch13.addConstraint([
    Sketcher.Constraint("Vertical", 0),
    Sketcher.Constraint("Horizontal", 1),
    Sketcher.Constraint("Vertical", 2),
    Sketcher.Constraint("Horizontal", 3),
    Sketcher.Constraint("Vertical", 4),
    Sketcher.Constraint("Horizontal", 5),
    Sketcher.Constraint("Vertical", 6),
    Sketcher.Constraint("Horizontal", 7),
    Sketcher.Constraint("Vertical", 8),
    Sketcher.Constraint("Horizontal", 9),
    Sketcher.Constraint("Vertical", 10),
    Sketcher.Constraint("Horizontal", 11),
    Sketcher.Constraint("DistanceX", 1, 2, 1, 1, 15.0),
    Sketcher.Constraint("DistanceX", 5, 2, 5, 1, 30.0),
    Sketcher.Constraint("DistanceX", 9, 2, 9, 1, 14.0),
    Sketcher.Constraint("DistanceY", 0, 2, 0, 1, 10.0),
    Sketcher.Constraint("DistanceY", 8, 2, 8, 1, 9.0),
    Sketcher.Constraint("DistanceY", 4, 2, 4, 1, 21.8),
    Sketcher.Constraint("DistanceY", -1, 1, 0, 2, 73.0),
    Sketcher.Constraint("DistanceX", -1, 1, 4, 2, 34.0),
    Sketcher.Constraint("DistanceY", -1, 1, 4, 2, 93.0),
    Sketcher.Constraint("DistanceX", -1, 1, 8, 2, 25.0),
    Sketcher.Constraint("DistanceX", -1, 1, 0, 2, 27.5),
    Sketcher.Constraint("DistanceY", -1, 1, 8, 2, 134.5),
])
pocket7 = body5.newObject("PartDesign::Pocket", "Pocket006")
pocket7.Profile = sketch13
pocket7.Length = 5
pocket7.Reversed = True

# Sketch on XZ plane
sketch14 = body5.newObject("Sketcher::SketchObject", "Sketch013")
sketch14.AttachmentSupport = (doc.getObject("XZ_Plane004"), [""])
sketch14.MapMode = "FlatFace"
sketch14.AttachmentOffset = App.Placement(V(0, 0, -35), App.Rotation())
add_polygon(sketch14, [(3, 136), (3, 134), (57, 134), (57, 136)])  # lines 0-3
sketch14.addConstraint([
    Sketcher.Constraint("Vertical", 0),
    Sketcher.Constraint("Horizontal", 1),
    Sketcher.Constraint("Vertical", 2),
    Sketcher.Constraint("Horizontal", 3),
    Sketcher.Constraint("DistanceX", 1, 1, 1, 2, 54.0),
    Sketcher.Constraint("DistanceY", 0, 2, 0, 1, 2.0),
    Sketcher.Constraint("DistanceX", -1, 1, 0, 2, 3.0),
    Sketcher.Constraint("DistanceY", -1, 1, 0, 2, 134.0),
])
pad7 = body5.newObject("PartDesign::Pad", "Pad006")
pad7.Profile = sketch14
pad7.Length = 32

# Sketch on XY plane
sketch15 = body5.newObject("Sketcher::SketchObject", "Sketch014")
sketch15.AttachmentSupport = (doc.getObject("XY_Plane004"), [""])
sketch15.MapMode = "FlatFace"
sketch15.AttachmentOffset = App.Placement(V(0, 0, 136), App.Rotation())
sketch15.addGeometry([
    Part.Circle(V(7, 29.6, 0), V(0, 0, 1), 1.1),
    Part.Circle(V(7, 6.4, 0), V(0, 0, 1), 1.1),
    Part.Circle(V(54, 29.6, 0), V(0, 0, 1), 1.1),
    Part.Circle(V(54, 6.4, 0), V(0, 0, 1), 1.1),
], False)
sketch15.addConstraint([
    Sketcher.Constraint("Equal", 0, 1),
    Sketcher.Constraint("Equal", 1, 2),
    Sketcher.Constraint("Equal", 2, 3),
    Sketcher.Constraint("Horizontal", 0, 3, 2, 3),
    Sketcher.Constraint("Horizontal", 1, 3, 3, 3),
    Sketcher.Constraint("Vertical", 0, 3, 1, 3),
    Sketcher.Constraint("Vertical", 2, 3, 3, 3),
    Sketcher.Constraint("Diameter", 0, 2.3),
    Sketcher.Constraint("DistanceX", -1, 1, 0, 3, 7.0),
    Sketcher.Constraint("DistanceX", -1, 1, 2, 3, 54.0),
    Sketcher.Constraint("DistanceY", -1, 1, 0, 3, 29.6),
    Sketcher.Constraint("DistanceY", -1, 1, 1, 3, 6.4),
])
pad8 = body5.newObject("PartDesign::Pad", "Pad007")
pad8.Profile = sketch15
pad8.Length = 5

# Sketch on XY plane
sketch16 = body5.newObject("Sketcher::SketchObject", "Sketch015")
sketch16.AttachmentSupport = (doc.getObject("XY_Plane004"), [""])
sketch16.MapMode = "FlatFace"
sketch16.AttachmentOffset = App.Placement(V(0, 0, 136), App.Rotation())
add_polygon(sketch16, [(8, 35), (8, 30), (52, 30), (52, 35)])  # lines 0-3
add_polygon(sketch16, [(8, 8), (8, 3), (52, 3), (52, 8)])  # lines 4-7
sketch16.addConstraint([
    Sketcher.Constraint("Vertical", 0),
    Sketcher.Constraint("Horizontal", 1),
    Sketcher.Constraint("Vertical", 2),
    Sketcher.Constraint("Horizontal", 3),
    Sketcher.Constraint("Vertical", 4),
    Sketcher.Constraint("Horizontal", 5),
    Sketcher.Constraint("Vertical", 6),
    Sketcher.Constraint("Horizontal", 7),
    Sketcher.Constraint("Vertical", 3, 2, 4, 2),
    Sketcher.Constraint("Vertical", 2, 2, 5, 2),
    Sketcher.Constraint("Equal", 2, 4),
    Sketcher.Constraint("DistanceY", 0, 2, 0, 1, 5.0),
    Sketcher.Constraint("DistanceX", 1, 1, 1, 2, 43.5),
    Sketcher.Constraint("DistanceY", -1, 1, 0, 2, 30.0),
    Sketcher.Constraint("DistanceX", -1, 1, 1, 2, 52.0),
    Sketcher.Constraint("DistanceY", -1, 1, 4, 2, 3.0),
])
pocket8 = body5.newObject("PartDesign::Pocket", "Pocket007")
pocket8.Profile = sketch16
pocket8.Length = 5

# Sketch on YZ plane
sketch17 = body5.newObject("Sketcher::SketchObject", "Sketch016")
sketch17.AttachmentSupport = (doc.getObject("YZ_Plane004"), [""])
sketch17.MapMode = "FlatFace"
sketch17.AttachmentOffset = App.Placement(V(0, 0, 32), App.Rotation())
add_polygon(sketch17, [(35, 151), (35, 131), (38, 131), (38, 151)])  # lines 0-3
sketch17.addConstraint([
    Sketcher.Constraint("Vertical", 0),
    Sketcher.Constraint("Horizontal", 1),
    Sketcher.Constraint("Vertical", 2),
    Sketcher.Constraint("Horizontal", 3),
    Sketcher.Constraint("DistanceX", 1, 1, 1, 2, 3.0),
    Sketcher.Constraint("DistanceY", 0, 2, 0, 1, 20.0),
    Sketcher.Constraint("DistanceX", -1, 1, 0, 2, 35.0),
    Sketcher.Constraint("DistanceY", -1, 1, 0, 2, 131.0),
])
pad9 = body5.newObject("PartDesign::Pad", "Pad008")
pad9.Profile = sketch17
pad9.Length = 25

# Sketch on XY plane
sketch18 = body5.newObject("Sketcher::SketchObject", "Sketch017")
sketch18.AttachmentSupport = (doc.getObject("XY_Plane004"), [""])
sketch18.MapMode = "FlatFace"
sketch18.AttachmentOffset = App.Placement(V(0, 0, 136), App.Rotation())
add_polygon(sketch18, [(3, 25), (3, 11), (8, 11), (8, 25)])  # lines 0-3
sketch18.addConstraint([
    Sketcher.Constraint("Vertical", 0),
    Sketcher.Constraint("Horizontal", 1),
    Sketcher.Constraint("Vertical", 2),
    Sketcher.Constraint("Horizontal", 3),
    Sketcher.Constraint("DistanceX", 1, 1, 1, 2, 5.0),
    Sketcher.Constraint("DistanceY", 0, 2, 0, 1, 14.0),
    Sketcher.Constraint("DistanceX", -1, 1, 0, 2, 3.0),
    Sketcher.Constraint("DistanceY", -1, 1, 0, 2, 11.0),
])
pocket9 = body5.newObject("PartDesign::Pocket", "Pocket008")
pocket9.Profile = sketch18
pocket9.Length = 1.5

doc.recompute()
